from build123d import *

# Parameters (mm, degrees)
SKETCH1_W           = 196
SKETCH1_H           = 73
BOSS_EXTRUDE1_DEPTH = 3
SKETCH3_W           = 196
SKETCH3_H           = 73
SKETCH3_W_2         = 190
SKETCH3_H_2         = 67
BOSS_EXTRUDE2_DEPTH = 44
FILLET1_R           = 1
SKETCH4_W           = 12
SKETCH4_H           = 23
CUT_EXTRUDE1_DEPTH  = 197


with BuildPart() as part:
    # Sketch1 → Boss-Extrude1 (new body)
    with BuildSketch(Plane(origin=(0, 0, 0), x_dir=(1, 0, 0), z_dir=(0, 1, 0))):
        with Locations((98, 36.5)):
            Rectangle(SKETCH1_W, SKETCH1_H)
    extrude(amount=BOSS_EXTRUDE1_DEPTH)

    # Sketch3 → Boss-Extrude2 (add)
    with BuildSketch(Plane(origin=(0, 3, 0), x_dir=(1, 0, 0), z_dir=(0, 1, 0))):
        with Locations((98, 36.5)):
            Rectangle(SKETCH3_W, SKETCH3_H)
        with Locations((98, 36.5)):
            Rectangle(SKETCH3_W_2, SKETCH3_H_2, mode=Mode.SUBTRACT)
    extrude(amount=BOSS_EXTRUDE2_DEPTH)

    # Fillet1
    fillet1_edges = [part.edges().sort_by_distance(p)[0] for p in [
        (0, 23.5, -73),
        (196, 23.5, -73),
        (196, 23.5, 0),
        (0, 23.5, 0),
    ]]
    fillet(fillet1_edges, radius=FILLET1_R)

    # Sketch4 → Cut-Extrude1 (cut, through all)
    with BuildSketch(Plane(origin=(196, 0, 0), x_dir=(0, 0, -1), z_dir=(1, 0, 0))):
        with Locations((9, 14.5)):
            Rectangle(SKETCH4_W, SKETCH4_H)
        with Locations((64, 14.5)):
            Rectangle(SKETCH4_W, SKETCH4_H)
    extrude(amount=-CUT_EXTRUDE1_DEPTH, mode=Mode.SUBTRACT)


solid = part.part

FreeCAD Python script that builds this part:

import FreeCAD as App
import Part
import Sketcher


def edges_at(feature, points):
    """Names of the edges that pass closest to the given points."""
    edges = feature.Shape.Edges
    near = lambda p: min(range(len(edges)), key=lambda i: edges[i].distToShape(Part.Vertex(*p))[0])
    return sorted({f"Edge{near(p) + 1}" for p in points})

doc = App.newDocument("Part")
body = doc.addObject("PartDesign::Body", "Body")

# Sketch on XZ plane
sketch1 = doc.addObject("Sketcher::SketchObject", "Sketch")
body.addObject(sketch1)
sketch1.AttachmentSupport = (doc.XZ_Plane, [""])
sketch1.MapMode = "FlatFace"
sketch1.addGeometry([
    Part.LineSegment(App.Vector(0, -73, 0), App.Vector(0, 0, 0)),
    Part.LineSegment(App.Vector(0, 0, 0), App.Vector(196, 0, 0)),
    Part.LineSegment(App.Vector(196, 0, 0), App.Vector(196, -73, 0)),
    Part.LineSegment(App.Vector(196, -73, 0), App.Vector(0, -73, 0)),
], False)
sketch1.addConstraint([
    Sketcher.Constraint("Coincident", 0, 2, 1, 1),
    Sketcher.Constraint("Coincident", 1, 2, 2, 1),
    Sketcher.Constraint("Coincident", 2, 2, 3, 1),
    Sketcher.Constraint("Coincident", 3, 2, 0, 1),
    Sketcher.Constraint("Vertical", 0),
    Sketcher.Constraint("Horizontal", 1),
    Sketcher.Constraint("Vertical", 2),
    Sketcher.Constraint("Horizontal", 3),
    Sketcher.Constraint("Coincident", 0, 2, -1, 1),
    Sketcher.Constraint("DistanceX", 1, 1, 1, 2, 196.0),
    Sketcher.Constraint("DistanceY", 0, 1, 0, 2, 73.0),
])
pad1 = doc.addObject("PartDesign::Pad", "Pad")
body.addObject(pad1)
pad1.Profile = sketch1
pad1.Length = 3
pad1.Reversed = True

# Sketch on XZ plane
sketch2 = doc.addObject("Sketcher::SketchObject", "Sketch001")
body.addObject(sketch2)
sketch2.AttachmentSupport = (doc.XZ_Plane, [""])
sketch2.MapMode = "FlatFace"
sketch2.AttachmentOffset = App.Placement(App.Vector(0, 0, -3), App.Rotation())
sketch2.addGeometry([
    Part.LineSegment(App.Vector(0, -73, 0), App.Vector(0, 0, 0)),  # 0
    Part.LineSegment(App.Vector(0, 0, 0), App.Vector(196, 0, 0)),  # 1
    Part.LineSegment(App.Vector(196, 0, 0), App.Vector(196, -73, 0)),  # 2
    Part.LineSegment(App.Vector(196, -73, 0), App.Vector(0, -73, 0)),  # 3
    Part.LineSegment(App.Vector(193, -3, 0), App.Vector(3, -3, 0)),  # 4
    Part.LineSegment(App.Vector(3, -3, 0), App.Vector(3, -70, 0)),  # 5
    Part.LineSegment(App.Vector(3, -70, 0), App.Vector(193, -70, 0)),  # 6
    Part.LineSegment(App.Vector(193, -70, 0), App.Vector(193, -3, 0)),  # 7
], False)
sketch2.addConstraint([
    Sketcher.Constraint("Coincident", 0, 2, 1, 1),
    Sketcher.Constraint("Coincident", 1, 2, 2, 1),
    Sketcher.Constraint("Coincident", 2, 2, 3, 1),
    Sketcher.Constraint("Coincident", 3, 2, 0, 1),
    Sketcher.Constraint("Coincident", 4, 2, 5, 1),
    Sketcher.Constraint("Coincident", 5, 2, 6, 1),
    Sketcher.Constraint("Coincident", 6, 2, 7, 1),
    Sketcher.Constraint("Coincident", 7, 2, 4, 1),
    Sketcher.Constraint("Vertical", 0),
    Sketcher.Constraint("Horizontal", 1),
    Sketcher.Constraint("Vertical", 2),
    Sketcher.Constraint("Horizontal", 3),
    Sketcher.Constraint("Horizontal", 4),
    Sketcher.Constraint("Vertical", 5),
    Sketcher.Constraint("Horizontal", 6),
    Sketcher.Constraint("Vertical", 7),
    Sketcher.Constraint("Coincident", 0, 2, -1, 1),
    Sketcher.Constraint("DistanceX", 1, 1, 1, 2, 196.0),
    Sketcher.Constraint("DistanceX", 4, 2, 4, 1, 190.0),
    Sketcher.Constraint("DistanceY", 0, 1, 0, 2, 73.0),
    Sketcher.Constraint("DistanceY", 5, 2, 5, 1, 67.0),
    Sketcher.Constraint("DistanceX", -1, 1, 4, 2, 3.0),
    Sketcher.Constraint("DistanceY", 4, 2, -1, 1, 3.0),
])
pad2 = doc.addObject("PartDesign::Pad", "Pad001")
body.addObject(pad2)
pad2.Profile = sketch2
pad2.Length = 44
pad2.Reversed = True
doc.recompute()

fillet = doc.addObject("PartDesign::Fillet", "Fillet")
body.addObject(fillet)
fillet.Base = (pad2, edges_at(pad2, [
    (0, 23.5, -73),
    (196, 23.5, -73),
    (196, 23.5, 0),
    (0, 23.5, 0),
]))
fillet.Radius = 1

# Sketch on YZ plane
sketch3 = doc.addObject("Sketcher::SketchObject", "Sketch002")
body.addObject(sketch3)
sketch3.AttachmentSupport = (doc.YZ_Plane, [""])
sketch3.MapMode = "FlatFace"
sketch3.AttachmentOffset = App.Placement(App.Vector(0, 0, 196), App.Rotation())
sketch3.addGeometry([
    Part.LineSegment(App.Vector(26, -3, 0), App.Vector(3, -3, 0)),  # 0
    Part.LineSegment(App.Vector(3, -3, 0), App.Vector(3, -15, 0)),  # 1
    Part.LineSegment(App.Vector(3, -15, 0), App.Vector(26, -15, 0)),  # 2
    Part.LineSegment(App.Vector(26, -15, 0), App.Vector(26, -3, 0)),  # 3
    Part.LineSegment(App.Vector(26, -58, 0), App.Vector(3, -58, 0)),  # 4
    Part.LineSegment(App.Vector(3, -58, 0), App.Vector(3, -70, 0)),  # 5
    Part.LineSegment(App.Vector(3, -70, 0), App.Vector(26, -70, 0)),  # 6
    Part.LineSegment(App.Vector(26, -70, 0), App.Vector(26, -58, 0)),  # 7
], False)
sketch3.addConstraint([
    Sketcher.Constraint("Coincident", 0, 2, 1, 1),
    Sketcher.Constraint("Coincident", 1, 2, 2, 1),
    Sketcher.Constraint("Coincident", 2, 2, 3, 1),
    Sketcher.Constraint("Coincident", 3, 2, 0, 1),
    Sketcher.Constraint("Coincident", 4, 2, 5, 1),
    Sketcher.Constraint("Coincident", 5, 2, 6, 1),
    Sketcher.Constraint("Coincident", 6, 2, 7, 1),
    Sketcher.Constraint("Coincident", 7, 2, 4, 1),
    Sketcher.Constraint("Horizontal", 0),
    Sketcher.Constraint("Vertical", 1),
    Sketcher.Constraint("Horizontal", 2),
    Sketcher.Constraint("Vertical", 3),
    Sketcher.Constraint("Horizontal", 4),
    Sketcher.Constraint("Vertical", 5),
    Sketcher.Constraint("Horizontal", 6),
    Sketcher.Constraint("Vertical", 7),
    Sketcher.Constraint("Vertical", 1, 2, 4, 2),
    Sketcher.Constraint("Vertical", 3, 2, 6, 2),
    Sketcher.Constraint("Equal", 3, 5),
    Sketcher.Constraint("DistanceX", 0, 2, 0, 1, 23.0),
    Sketcher.Constraint("DistanceY", 1, 2, 1, 1, 12.0),
    Sketcher.Constraint("DistanceX", -1, 1, 0, 2, 3.0),
    Sketcher.Constraint("DistanceY", 0, 2, -1, 1, 3.0),
    Sketcher.Constraint("DistanceY", 4, 2, -1, 1, 58.0),
])
pocket1 = doc.addObject("PartDesign::Pocket", "Pocket")
body.addObject(pocket1)
pocket1.Profile = sketch3
pocket1.Type = "ThroughAll"

doc.recompute()
